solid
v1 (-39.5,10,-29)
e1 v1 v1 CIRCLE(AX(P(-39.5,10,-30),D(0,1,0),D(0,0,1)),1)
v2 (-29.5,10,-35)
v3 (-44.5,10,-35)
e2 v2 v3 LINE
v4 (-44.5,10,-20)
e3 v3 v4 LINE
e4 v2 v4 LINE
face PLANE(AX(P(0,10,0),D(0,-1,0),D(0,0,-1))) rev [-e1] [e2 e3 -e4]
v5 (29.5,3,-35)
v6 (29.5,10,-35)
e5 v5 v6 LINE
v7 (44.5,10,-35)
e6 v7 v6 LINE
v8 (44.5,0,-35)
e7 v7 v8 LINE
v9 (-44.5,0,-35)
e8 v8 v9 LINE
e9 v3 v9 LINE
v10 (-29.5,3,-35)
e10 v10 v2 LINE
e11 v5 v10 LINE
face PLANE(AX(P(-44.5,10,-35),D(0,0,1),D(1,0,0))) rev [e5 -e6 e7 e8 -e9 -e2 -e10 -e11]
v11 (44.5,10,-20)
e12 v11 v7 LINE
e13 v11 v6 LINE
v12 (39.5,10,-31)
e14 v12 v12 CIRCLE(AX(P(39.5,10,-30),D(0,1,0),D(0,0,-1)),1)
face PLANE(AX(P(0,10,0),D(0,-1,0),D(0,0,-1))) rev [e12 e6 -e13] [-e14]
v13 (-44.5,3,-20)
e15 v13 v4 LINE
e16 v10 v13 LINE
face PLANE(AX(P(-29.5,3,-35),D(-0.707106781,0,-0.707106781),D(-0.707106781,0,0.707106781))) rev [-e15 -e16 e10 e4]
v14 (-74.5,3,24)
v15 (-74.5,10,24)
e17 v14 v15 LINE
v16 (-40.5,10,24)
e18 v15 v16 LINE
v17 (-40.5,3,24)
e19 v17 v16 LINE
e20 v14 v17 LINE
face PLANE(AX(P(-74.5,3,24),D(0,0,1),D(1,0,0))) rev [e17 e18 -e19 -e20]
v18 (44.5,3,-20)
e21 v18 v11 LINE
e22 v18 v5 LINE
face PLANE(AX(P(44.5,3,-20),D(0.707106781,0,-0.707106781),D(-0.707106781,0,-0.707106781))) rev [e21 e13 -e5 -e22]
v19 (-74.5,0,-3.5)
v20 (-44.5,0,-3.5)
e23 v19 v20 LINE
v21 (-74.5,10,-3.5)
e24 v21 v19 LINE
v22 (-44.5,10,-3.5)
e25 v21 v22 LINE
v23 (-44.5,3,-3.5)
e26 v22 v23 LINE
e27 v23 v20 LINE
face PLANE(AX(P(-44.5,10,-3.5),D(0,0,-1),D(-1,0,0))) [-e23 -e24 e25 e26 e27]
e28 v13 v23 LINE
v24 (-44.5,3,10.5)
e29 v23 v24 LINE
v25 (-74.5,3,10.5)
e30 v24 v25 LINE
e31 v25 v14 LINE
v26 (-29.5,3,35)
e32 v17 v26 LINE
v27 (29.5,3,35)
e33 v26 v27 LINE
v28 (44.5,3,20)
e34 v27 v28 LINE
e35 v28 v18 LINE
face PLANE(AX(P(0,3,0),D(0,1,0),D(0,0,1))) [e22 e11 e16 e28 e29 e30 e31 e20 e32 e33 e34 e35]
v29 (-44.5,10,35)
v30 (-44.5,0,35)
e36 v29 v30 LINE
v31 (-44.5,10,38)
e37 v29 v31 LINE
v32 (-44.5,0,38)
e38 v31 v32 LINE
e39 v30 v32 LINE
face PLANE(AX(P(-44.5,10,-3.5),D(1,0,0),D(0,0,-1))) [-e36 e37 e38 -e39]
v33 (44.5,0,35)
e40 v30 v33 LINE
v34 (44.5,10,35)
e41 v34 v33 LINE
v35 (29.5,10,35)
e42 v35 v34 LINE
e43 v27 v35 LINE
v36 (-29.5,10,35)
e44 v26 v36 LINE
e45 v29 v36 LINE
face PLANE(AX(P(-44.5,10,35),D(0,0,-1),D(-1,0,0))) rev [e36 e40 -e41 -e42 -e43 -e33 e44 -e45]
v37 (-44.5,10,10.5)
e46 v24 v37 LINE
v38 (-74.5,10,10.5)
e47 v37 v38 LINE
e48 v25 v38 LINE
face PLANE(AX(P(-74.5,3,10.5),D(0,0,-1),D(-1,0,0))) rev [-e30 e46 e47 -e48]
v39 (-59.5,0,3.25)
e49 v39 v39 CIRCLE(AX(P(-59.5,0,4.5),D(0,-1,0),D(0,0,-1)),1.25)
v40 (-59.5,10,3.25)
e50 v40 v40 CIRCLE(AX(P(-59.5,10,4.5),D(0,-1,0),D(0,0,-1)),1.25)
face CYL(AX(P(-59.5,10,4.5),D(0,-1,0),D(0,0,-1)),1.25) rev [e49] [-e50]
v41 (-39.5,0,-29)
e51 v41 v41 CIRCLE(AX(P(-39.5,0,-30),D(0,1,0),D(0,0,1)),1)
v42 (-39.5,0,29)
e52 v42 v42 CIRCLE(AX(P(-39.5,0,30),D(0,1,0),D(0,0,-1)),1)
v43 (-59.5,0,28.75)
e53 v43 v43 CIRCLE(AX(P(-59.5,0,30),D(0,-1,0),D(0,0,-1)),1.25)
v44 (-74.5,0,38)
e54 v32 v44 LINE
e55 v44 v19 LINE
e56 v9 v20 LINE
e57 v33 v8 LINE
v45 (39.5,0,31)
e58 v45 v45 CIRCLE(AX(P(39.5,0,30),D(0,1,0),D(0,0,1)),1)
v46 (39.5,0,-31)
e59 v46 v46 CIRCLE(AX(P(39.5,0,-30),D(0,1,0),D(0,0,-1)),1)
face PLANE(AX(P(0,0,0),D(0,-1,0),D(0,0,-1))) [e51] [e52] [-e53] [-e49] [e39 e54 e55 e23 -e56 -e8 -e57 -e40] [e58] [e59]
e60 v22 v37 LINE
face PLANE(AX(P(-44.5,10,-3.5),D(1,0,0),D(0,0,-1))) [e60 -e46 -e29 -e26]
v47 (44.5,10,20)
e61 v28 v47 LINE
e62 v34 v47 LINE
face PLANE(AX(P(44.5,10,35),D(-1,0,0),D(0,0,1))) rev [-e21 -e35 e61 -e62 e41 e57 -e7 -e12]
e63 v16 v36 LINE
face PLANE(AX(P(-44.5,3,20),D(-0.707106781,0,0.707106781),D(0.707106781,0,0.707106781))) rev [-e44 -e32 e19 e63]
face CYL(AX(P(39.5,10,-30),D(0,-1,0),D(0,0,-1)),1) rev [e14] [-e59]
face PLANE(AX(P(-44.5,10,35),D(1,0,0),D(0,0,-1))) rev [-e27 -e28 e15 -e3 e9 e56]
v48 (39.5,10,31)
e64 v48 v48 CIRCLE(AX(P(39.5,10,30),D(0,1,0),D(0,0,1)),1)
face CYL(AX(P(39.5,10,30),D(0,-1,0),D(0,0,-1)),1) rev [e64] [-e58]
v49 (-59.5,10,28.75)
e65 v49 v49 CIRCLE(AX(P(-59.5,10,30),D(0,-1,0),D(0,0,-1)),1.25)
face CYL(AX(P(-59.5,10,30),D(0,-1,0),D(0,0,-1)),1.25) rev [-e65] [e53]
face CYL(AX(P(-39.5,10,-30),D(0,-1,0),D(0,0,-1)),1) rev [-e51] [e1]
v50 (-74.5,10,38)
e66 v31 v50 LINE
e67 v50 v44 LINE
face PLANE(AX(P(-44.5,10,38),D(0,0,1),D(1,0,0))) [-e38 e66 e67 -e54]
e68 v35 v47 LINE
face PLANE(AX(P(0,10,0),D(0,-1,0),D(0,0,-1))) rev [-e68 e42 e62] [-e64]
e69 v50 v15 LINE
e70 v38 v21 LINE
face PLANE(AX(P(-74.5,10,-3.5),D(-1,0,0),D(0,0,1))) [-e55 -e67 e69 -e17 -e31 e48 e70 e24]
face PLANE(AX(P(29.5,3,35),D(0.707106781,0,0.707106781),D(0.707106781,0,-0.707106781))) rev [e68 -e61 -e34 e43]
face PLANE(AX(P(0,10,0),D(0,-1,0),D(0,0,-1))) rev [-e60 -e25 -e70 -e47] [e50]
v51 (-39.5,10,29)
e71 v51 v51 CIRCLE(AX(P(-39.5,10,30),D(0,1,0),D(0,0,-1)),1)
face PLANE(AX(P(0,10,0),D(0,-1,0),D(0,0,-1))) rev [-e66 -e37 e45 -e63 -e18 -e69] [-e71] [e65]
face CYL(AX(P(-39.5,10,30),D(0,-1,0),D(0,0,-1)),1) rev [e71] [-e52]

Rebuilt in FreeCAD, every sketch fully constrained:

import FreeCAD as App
import Part
import Sketcher

doc = App.newDocument("Part")
params = doc.addObject("Spreadsheet::Sheet", "Params")
for row, (alias, value) in enumerate([
    ("sketch1_diameter", "2 mm"),
    ("sketch1_width", "89 mm"),
    ("sketch1_height", "70 mm"),
    ("pad1_length", "10 mm"),
    ("sketch2_width", "59 mm"),
    ("sketch2_height", "40 mm"),
    ("pocket1_length", "7 mm"),
    ("sketch3_diameter", "2.5 mm"),
    ("sketch3_width", "30 mm"),
    ("sketch3_height", "41.5 mm"),
    ("pad2_length", "10 mm"),
    ("sketch4_width", "34 mm"),
    ("sketch4_height", "13.5 mm"),
    ("pocket2_length", "7 mm"),
], start=1):
    params.set(f"A{row}", alias)
    params.set(f"B{row}", "=" + value)
    params.setAlias(f"B{row}", alias)

body = doc.addObject("PartDesign::Body", "Body")

# Sketch on XZ plane
sketch1 = body.newObject("Sketcher::SketchObject", "Sketch")
sketch1.AttachmentSupport = (doc.getObject("XZ_Plane"), [""])
sketch1.MapMode = "FlatFace"
sketch1.addGeometry([
    Part.LineSegment(App.Vector(-44.5, -35, 0), App.Vector(-44.5, 35, 0)),  # 0
    Part.LineSegment(App.Vector(-44.5, 35, 0), App.Vector(44.5, 35, 0)),  # 1
    Part.LineSegment(App.Vector(44.5, 35, 0), App.Vector(44.5, -35, 0)),  # 2
    Part.LineSegment(App.Vector(44.5, -35, 0), App.Vector(-44.5, -35, 0)),  # 3
    Part.Circle(App.Vector(-39.5, 30, 0), App.Vector(0, 0, 1), 1),  # 4
    Part.Circle(App.Vector(39.5, 30, 0), App.Vector(0, 0, 1), 1),  # 5
    Part.Circle(App.Vector(-39.5, -30, 0), App.Vector(0, 0, 1), 1),  # 6
    Part.Circle(App.Vector(39.5, -30, 0), App.Vector(0, 0, 1), 1),  # 7
], False)
sketch1.addConstraint([
    Sketcher.Constraint("Coincident", 0, 2, 1, 1),
    Sketcher.Constraint("Coincident", 1, 2, 2, 1),
    Sketcher.Constraint("Coincident", 2, 2, 3, 1),
    Sketcher.Constraint("Coincident", 3, 2, 0, 1),
    Sketcher.Constraint("Vertical", 0),
    Sketcher.Constraint("Horizontal", 1),
    Sketcher.Constraint("Vertical", 2),
    Sketcher.Constraint("Horizontal", 3),
    Sketcher.Constraint("Equal", 4, 5),
    Sketcher.Constraint("Equal", 5, 6),
    Sketcher.Constraint("Equal", 6, 7),
    Sketcher.Constraint("Symmetric", 5, 3, 6, 3, -1, 1),
    Sketcher.Constraint("Symmetric", 4, 3, 7, 3, -1, 1),
    Sketcher.Constraint("Symmetric", 0, 2, 2, 2, -1, 1),
    Sketcher.Constraint("Symmetric", 4, 3, 5, 3, -2),
    Sketcher.Constraint("Diameter", 4, 2.0),
    Sketcher.Constraint("DistanceX", 1, 1, 1, 2, 89.0),
    Sketcher.Constraint("DistanceY", 0, 1, 0, 2, 70.0),
    Sketcher.Constraint("DistanceY", -1, 1, 4, 3, 30.0),
    Sketcher.Constraint("DistanceX", 4, 3, 5, 3, 79.0),
])
sketch1.setExpression("Constraints[15]", "Params.sketch1_diameter")
sketch1.setExpression("Constraints[16]", "Params.sketch1_width")
sketch1.setExpression("Constraints[17]", "Params.sketch1_height")
pad1 = body.newObject("PartDesign::Pad", "Pad")
pad1.Profile = sketch1
pad1.setExpression("Length", "Params.pad1_length")
pad1.Reversed = True

# Sketch on XZ plane
sketch2 = body.newObject("Sketcher::SketchObject", "Sketch001")
sketch2.AttachmentSupport = (doc.getObject("XZ_Plane"), [""])
sketch2.MapMode = "FlatFace"
sketch2.AttachmentOffset = App.Placement(App.Vector(0, 0, -10), App.Rotation())
sketch2.addGeometry([
    Part.LineSegment(App.Vector(-44.5, 20, 0), App.Vector(-29.5, 35, 0)),  # 0
    Part.LineSegment(App.Vector(-29.5, 35, 0), App.Vector(29.5, 35, 0)),  # 1
    Part.LineSegment(App.Vector(29.5, 35, 0), App.Vector(44.5, 20, 0)),  # 2
    Part.LineSegment(App.Vector(44.5, 20, 0), App.Vector(44.5, -20, 0)),  # 3
    Part.LineSegment(App.Vector(44.5, -20, 0), App.Vector(29.5, -35, 0)),  # 4
    Part.LineSegment(App.Vector(29.5, -35, 0), App.Vector(-29.5, -35, 0)),  # 5
    Part.LineSegment(App.Vector(-29.5, -35, 0), App.Vector(-44.5, -20, 0)),  # 6
    Part.LineSegment(App.Vector(-44.5, -20, 0), App.Vector(-44.5, 20, 0)),  # 7
], False)
sketch2.addConstraint([
    Sketcher.Constraint("Coincident", 0, 2, 1, 1),
    Sketcher.Constraint("Coincident", 1, 2, 2, 1),
    Sketcher.Constraint("Coincident", 2, 2, 3, 1),
    Sketcher.Constraint("Coincident", 3, 2, 4, 1),
    Sketcher.Constraint("Coincident", 4, 2, 5, 1),
    Sketcher.Constraint("Coincident", 5, 2, 6, 1),
    Sketcher.Constraint("Coincident", 6, 2, 7, 1),
    Sketcher.Constraint("Coincident", 7, 2, 0, 1),
    Sketcher.Constraint("Horizontal", 1),
    Sketcher.Constraint("Vertical", 3),
    Sketcher.Constraint("Horizontal", 5),
    Sketcher.Constraint("Vertical", 7),
    Sketcher.Constraint("Symmetric", 0, 2, 4, 2, -1, 1),
    Sketcher.Constraint("Symmetric", 2, 2, 6, 2, -1, 1),
    Sketcher.Constraint("Perpendicular", 0, 2),
    Sketcher.Constraint("Perpendicular", 2, 4),
    Sketcher.Constraint("Perpendicular", 4, 6),
    Sketcher.Constraint("Horizontal", 3, 2, 6, 2),
    Sketcher.Constraint("Vertical", 1, 2, 4, 2),
    Sketcher.Constraint("DistanceX", 1, 1, 1, 2, 59.0),
    Sketcher.Constraint("DistanceY", 3, 2, 3, 1, 40.0),
    Sketcher.Constraint("DistanceY", -1, 1, 0, 2, 35.0),
])
sketch2.setExpression("Constraints[19]", "Params.sketch2_width")
sketch2.setExpression("Constraints[20]", "Params.sketch2_height")
pocket1 = body.newObject("PartDesign::Pocket", "Pocket")
pocket1.Profile = sketch2
pocket1.setExpression("Length", "Params.pocket1_length")
pocket1.Reversed = True

# Sketch on XZ plane
sketch3 = body.newObject("Sketcher::SketchObject", "Sketch002")
sketch3.AttachmentSupport = (doc.getObject("XZ_Plane"), [""])
sketch3.MapMode = "FlatFace"
sketch3.addGeometry([
    Part.LineSegment(App.Vector(-74.5, 38, 0), App.Vector(-74.5, -3.5, 0)),  # 0
    Part.LineSegment(App.Vector(-74.5, -3.5, 0), App.Vector(-44.5, -3.5, 0)),  # 1
    Part.LineSegment(App.Vector(-44.5, -3.5, 0), App.Vector(-44.5, 38, 0)),  # 2
    Part.LineSegment(App.Vector(-44.5, 38, 0), App.Vector(-74.5, 38, 0)),  # 3
    Part.Circle(App.Vector(-59.5, 4.5, 0), App.Vector(0, 0, 1), 1.25),  # 4
    Part.Circle(App.Vector(-59.5, 30, 0), App.Vector(0, 0, 1), 1.25),  # 5
], False)
sketch3.addConstraint([
    Sketcher.Constraint("Coincident", 0, 2, 1, 1),
    Sketcher.Constraint("Coincident", 1, 2, 2, 1),
    Sketcher.Constraint("Coincident", 2, 2, 3, 1),
    Sketcher.Constraint("Coincident", 3, 2, 0, 1),
    Sketcher.Constraint("Vertical", 0),
    Sketcher.Constraint("Horizontal", 1),
    Sketcher.Constraint("Vertical", 2),
    Sketcher.Constraint("Horizontal", 3),
    Sketcher.Constraint("Equal", 4, 5),
    Sketcher.Constraint("Vertical", 4, 3, 5, 3),
    Sketcher.Constraint("Diameter", 4, 2.5),
    Sketcher.Constraint("DistanceX", 1, 1, 1, 2, 30.0),
    Sketcher.Constraint("DistanceY", 0, 2, 0, 1, 41.5),
    Sketcher.Constraint("DistanceY", -1, 1, 5, 3, 30.0),
    Sketcher.Constraint("DistanceY", -1, 1, 2, 2, 38.0),
    Sketcher.Constraint("DistanceX", 0, 2, 4, 3, 15.0),
    Sketcher.Constraint("DistanceY", 0, 2, 4, 3, 8.0),
    Sketcher.Constraint("DistanceX", 4, 3, -1, 1, 59.5),
])
sketch3.setExpression("Constraints[10]", "Params.sketch3_diameter")
sketch3.setExpression("Constraints[11]", "Params.sketch3_width")
sketch3.setExpression("Constraints[12]", "Params.sketch3_height")
pad2 = body.newObject("PartDesign::Pad", "Pad001")
pad2.Profile = sketch3
pad2.setExpression("Length", "Params.pad2_length")
pad2.Reversed = True

# Sketch on XZ plane
sketch4 = body.newObject("Sketcher::SketchObject", "Sketch003")
sketch4.AttachmentSupport = (doc.getObject("XZ_Plane"), [""])
sketch4.MapMode = "FlatFace"
sketch4.AttachmentOffset = App.Placement(App.Vector(0, 0, -10), App.Rotation())
sketch4.addGeometry([
    Part.LineSegment(App.Vector(-74.5, 10.5, 0), App.Vector(-74.5, 24, 0)),
    Part.LineSegment(App.Vector(-74.5, 24, 0), App.Vector(-40.5, 24, 0)),
    Part.LineSegment(App.Vector(-40.5, 24, 0), App.Vector(-40.5, 10.5, 0)),
    Part.LineSegment(App.Vector(-40.5, 10.5, 0), App.Vector(-74.5, 10.5, 0)),
], False)
sketch4.addConstraint([
    Sketcher.Constraint("Coincident", 0, 2, 1, 1),
    Sketcher.Constraint("Coincident", 1, 2, 2, 1),
    Sketcher.Constraint("Coincident", 2, 2, 3, 1),
    Sketcher.Constraint("Coincident", 3, 2, 0, 1),
    Sketcher.Constraint("Vertical", 0),
    Sketcher.Constraint("Horizontal", 1),
    Sketcher.Constraint("Vertical", 2),
    Sketcher.Constraint("Horizontal", 3),
    Sketcher.Constraint("DistanceX", 1, 1, 1, 2, 34.0),
    Sketcher.Constraint("DistanceY", 0, 1, 0, 2, 13.5),
    Sketcher.Constraint("DistanceY", -1, 1, 0, 2, 24.0),
    Sketcher.Constraint("DistanceX", 0, 2, -1, 1, 74.5),
])
sketch4.setExpression("Constraints[8]", "Params.sketch4_width")
sketch4.setExpression("Constraints[9]", "Params.sketch4_height")
pocket2 = body.newObject("PartDesign::Pocket", "Pocket001")
pocket2.Profile = sketch4
pocket2.setExpression("Length", "Params.pocket2_length")
pocket2.Reversed = True

doc.recompute()
